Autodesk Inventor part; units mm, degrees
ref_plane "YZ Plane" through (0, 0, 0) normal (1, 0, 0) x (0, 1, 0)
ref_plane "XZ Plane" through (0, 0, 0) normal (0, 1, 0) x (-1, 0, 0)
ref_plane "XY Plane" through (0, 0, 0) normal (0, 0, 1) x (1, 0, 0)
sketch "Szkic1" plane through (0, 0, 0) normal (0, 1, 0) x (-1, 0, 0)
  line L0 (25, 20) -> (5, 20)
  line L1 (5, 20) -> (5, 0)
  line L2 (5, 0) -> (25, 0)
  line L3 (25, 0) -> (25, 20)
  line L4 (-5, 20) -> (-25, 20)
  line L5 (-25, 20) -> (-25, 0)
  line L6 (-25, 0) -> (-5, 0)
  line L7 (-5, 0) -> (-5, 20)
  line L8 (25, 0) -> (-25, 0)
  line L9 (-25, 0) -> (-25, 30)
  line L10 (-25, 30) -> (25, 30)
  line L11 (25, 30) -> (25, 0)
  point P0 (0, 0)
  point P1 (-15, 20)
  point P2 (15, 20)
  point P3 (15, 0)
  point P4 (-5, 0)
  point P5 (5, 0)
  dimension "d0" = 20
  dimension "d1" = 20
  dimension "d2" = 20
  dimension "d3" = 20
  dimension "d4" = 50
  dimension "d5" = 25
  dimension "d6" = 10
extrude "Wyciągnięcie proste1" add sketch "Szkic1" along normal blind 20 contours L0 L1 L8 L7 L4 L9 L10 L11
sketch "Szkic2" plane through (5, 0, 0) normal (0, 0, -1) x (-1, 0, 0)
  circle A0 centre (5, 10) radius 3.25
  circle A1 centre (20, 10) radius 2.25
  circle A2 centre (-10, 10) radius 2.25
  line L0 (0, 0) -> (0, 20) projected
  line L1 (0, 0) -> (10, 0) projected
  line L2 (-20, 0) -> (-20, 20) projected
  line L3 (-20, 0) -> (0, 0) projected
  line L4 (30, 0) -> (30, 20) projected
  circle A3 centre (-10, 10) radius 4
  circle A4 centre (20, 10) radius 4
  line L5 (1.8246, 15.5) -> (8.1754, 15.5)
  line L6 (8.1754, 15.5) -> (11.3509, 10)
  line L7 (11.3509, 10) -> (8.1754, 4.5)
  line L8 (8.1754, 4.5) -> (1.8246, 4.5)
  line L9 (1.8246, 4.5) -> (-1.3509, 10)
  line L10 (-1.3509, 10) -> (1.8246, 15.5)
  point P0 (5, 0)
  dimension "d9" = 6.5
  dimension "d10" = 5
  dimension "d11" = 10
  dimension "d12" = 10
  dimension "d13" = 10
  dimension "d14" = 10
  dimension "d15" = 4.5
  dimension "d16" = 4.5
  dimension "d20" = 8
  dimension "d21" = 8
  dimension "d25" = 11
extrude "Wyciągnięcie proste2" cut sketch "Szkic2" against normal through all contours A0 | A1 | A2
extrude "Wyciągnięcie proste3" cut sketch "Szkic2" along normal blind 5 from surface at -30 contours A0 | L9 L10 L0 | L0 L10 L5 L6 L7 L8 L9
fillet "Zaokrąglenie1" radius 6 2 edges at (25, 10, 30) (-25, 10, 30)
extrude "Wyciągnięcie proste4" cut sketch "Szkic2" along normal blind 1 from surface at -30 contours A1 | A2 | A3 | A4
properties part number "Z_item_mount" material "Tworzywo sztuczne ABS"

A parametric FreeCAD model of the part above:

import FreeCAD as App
import Part
import Sketcher
from FreeCAD import Vector
Q = App.Units.Quantity


def edges_at(feature, points):
    """Names of the edges that pass closest to the given points."""
    edges = feature.Shape.Edges
    near = lambda p: min(range(len(edges)), key=lambda i: edges[i].distToShape(Part.Vertex(*p))[0])
    return sorted({f"Edge{near(p) + 1}" for p in points})


def add_polygon(sketch, points):
    """Adds a closed chain of lines whose ends are joined by coincident constraints."""
    first, n = sketch.GeometryCount, len(points)
    for a, b in zip(points, points[1:] + points[:1]):
        sketch.addGeometry(Part.LineSegment(App.Vector(*a, 0), App.Vector(*b, 0)), False)
    for i in range(n):
        sketch.addConstraint(Sketcher.Constraint("Coincident", first + i, 2, first + (i + 1) % n, 1))

doc = App.newDocument("Part")
body = doc.addObject("PartDesign::Body", "Body")

# Sketch on XZ plane
sketch1 = body.newObject("Sketcher::SketchObject", "Sketch")
sketch1.AttachmentSupport = (doc.getObject("XZ_Plane"), [""])
sketch1.MapMode = "FlatFace"
add_polygon(sketch1, [(-5, 20), (-25, 20), (-25, 30), (25, 30), (25, 20), (5, 20), (5, 0), (-5, 0)])  # lines 0-7
sketch1.addConstraint([
    Sketcher.Constraint("Horizontal", 0),
    Sketcher.Constraint("Vertical", 1),
    Sketcher.Constraint("Horizontal", 2),
    Sketcher.Constraint("Vertical", 3),
    Sketcher.Constraint("Horizontal", 4),
    Sketcher.Constraint("Vertical", 5),
    Sketcher.Constraint("Horizontal", 6),
    Sketcher.Constraint("Vertical", 7),
    Sketcher.Constraint("Symmetric", 5, 2, 6, 2, -1, 1),
    Sketcher.Constraint("Symmetric", 0, 2, 3, 2, -2),
    Sketcher.Constraint("Equal", 6, 1),
    Sketcher.Constraint("Equal", 4, 5),
    Sketcher.Constraint("DistanceX", 0, 2, 0, 1, Q("20 mm")),
    Sketcher.Constraint("DistanceX", 2, 1, 2, 2, Q("50 mm")),
])
pad1 = body.newObject("PartDesign::Pad", "Pad")
pad1.Profile = sketch1
pad1.Length = 20
pad1.Reversed = True

# Sketch on XY plane
sketch2 = body.newObject("Sketcher::SketchObject", "Sketch001")
sketch2.AttachmentSupport = (doc.getObject("XY_Plane"), [""])
sketch2.MapMode = "FlatFace"
sketch2.addGeometry([
    Part.Circle(Vector(0, 10, 0), Vector(0, 0, 1), 3.2),
    Part.Circle(Vector(-15, 10, 0), Vector(0, 0, 1), 2.2),
    Part.Circle(Vector(15, 10, 0), Vector(0, 0, 1), 2.2),
], False)
sketch2.addConstraint([
    Sketcher.Constraint("Equal", 1, 2),
    Sketcher.Constraint("Symmetric", 1, 3, 2, 3, -2),
    Sketcher.Constraint("PointOnObject", 0, 3, -2),
    Sketcher.Constraint("Horizontal", 0, 3, 1, 3),
    Sketcher.Constraint("Diameter", 0, Q("6.5 mm")),
    Sketcher.Constraint("Diameter", 1, Q("4.5 mm")),
    Sketcher.Constraint("DistanceY", -1, 1, 0, 3, Q("10 mm")),
    Sketcher.Constraint("DistanceX", 1, 3, -1, 1, Q("15 mm")),
])
pocket1 = body.newObject("PartDesign::Pocket", "Pocket")
pocket1.Profile = sketch2
pocket1.Type = "ThroughAll"
pocket1.Reversed = True

# Sketch on XY plane
sketch3 = body.newObject("Sketcher::SketchObject", "Sketch002")
sketch3.AttachmentSupport = (doc.getObject("XY_Plane"), [""])
sketch3.MapMode = "FlatFace"
sketch3.AttachmentOffset = App.Placement(Vector(0, 0, 30), App.Rotation())
add_polygon(sketch3, [(3, 16), (6, 10), (3, 4), (-3, 4), (-6, 10), (-3, 16)])  # lines 0-5
sketch3.addConstraint([
    Sketcher.Constraint("Horizontal", 2),
    Sketcher.Constraint("Horizontal", 5),
    Sketcher.Constraint("Symmetric", 0, 2, 3, 2, -2),
    Sketcher.Constraint("Parallel", 0, 3),
    Sketcher.Constraint("Parallel", 1, 4),
    Sketcher.Constraint("Vertical", 2, 2, 4, 2),
    Sketcher.Constraint("Vertical", 1, 2, 5, 2),
    Sketcher.Constraint("DistanceY", -1, 1, 0, 2, Q("10 mm")),
    Sketcher.Constraint("DistanceY", 2, 2, 4, 2, Q("11 mm")),
    Sketcher.Constraint("Angle", 0, Q("-59.9994 deg")),
    Sketcher.Constraint("DistanceX", 2, 2, 2, 1, Q("6.3508 mm")),
])
pocket2 = body.newObject("PartDesign::Pocket", "Pocket001")
pocket2.Profile = sketch3
pocket2.Length = 5
doc.recompute()

fillet = body.newObject("PartDesign::Fillet", "Fillet")
fillet.Base = (pocket2, edges_at(pocket2, [(25, 10, 30), (-25, 10, 30)]))
fillet.Radius = 6

# Sketch on XY plane
sketch4 = body.newObject("Sketcher::SketchObject", "Sketch003")
sketch4.AttachmentSupport = (doc.getObject("XY_Plane"), [""])
sketch4.MapMode = "FlatFace"
sketch4.AttachmentOffset = App.Placement(Vector(0, 0, 30), App.Rotation())
sketch4.addGeometry([
    Part.Circle(Vector(-15, 10, 0), Vector(0, 0, 1), 4),
    Part.Circle(Vector(15, 10, 0), Vector(0, 0, 1), 4),
], False)
sketch4.addConstraint([
    Sketcher.Constraint("Equal", 0, 1),
    Sketcher.Constraint("Symmetric", 0, 3, 1, 3, -2),
    Sketcher.Constraint("Diameter", 0, Q("8 mm")),
    Sketcher.Constraint("DistanceY", -1, 1, 0, 3, Q("10 mm")),
    Sketcher.Constraint("DistanceX", 0, 3, -1, 1, Q("15 mm")),
])
pocket3 = body.newObject("PartDesign::Pocket", "Pocket002")
pocket3.Profile = sketch4
pocket3.Length = 1

doc.recompute()
